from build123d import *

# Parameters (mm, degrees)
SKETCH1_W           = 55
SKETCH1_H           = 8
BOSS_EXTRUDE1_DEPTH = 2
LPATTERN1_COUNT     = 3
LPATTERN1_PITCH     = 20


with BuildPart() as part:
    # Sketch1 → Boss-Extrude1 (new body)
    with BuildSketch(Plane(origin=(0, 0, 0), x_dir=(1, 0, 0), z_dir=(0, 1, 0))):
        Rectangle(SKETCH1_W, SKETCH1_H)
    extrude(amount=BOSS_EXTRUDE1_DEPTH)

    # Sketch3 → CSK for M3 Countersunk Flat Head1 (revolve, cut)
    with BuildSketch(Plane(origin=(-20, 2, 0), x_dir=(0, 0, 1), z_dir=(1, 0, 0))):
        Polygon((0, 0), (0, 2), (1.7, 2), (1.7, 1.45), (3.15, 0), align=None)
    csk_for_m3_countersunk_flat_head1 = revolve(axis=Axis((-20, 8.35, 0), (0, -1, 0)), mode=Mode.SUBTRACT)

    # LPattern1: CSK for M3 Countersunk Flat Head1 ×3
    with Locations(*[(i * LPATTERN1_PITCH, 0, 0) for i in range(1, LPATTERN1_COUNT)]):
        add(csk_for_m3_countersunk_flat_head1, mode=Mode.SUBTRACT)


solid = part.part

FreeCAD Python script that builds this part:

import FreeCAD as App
import Part
import Sketcher
Q = App.Units.Quantity

doc = App.newDocument("Part")
body = doc.addObject("PartDesign::Body", "Body")

sketch1 = body.newObject("Sketcher::SketchObject", "Sketch")
sketch1.AttachmentSupport = (doc.getObject("XZ_Plane"), [""])
sketch1.MapMode = "FlatFace"
sketch1.addGeometry([
    Part.LineSegment(App.Vector(-28, -4, 0), App.Vector(-28, 4, 0)),
    Part.LineSegment(App.Vector(-28, 4, 0), App.Vector(28, 4, 0)),
    Part.LineSegment(App.Vector(28, 4, 0), App.Vector(28, -4, 0)),
    Part.LineSegment(App.Vector(28, -4, 0), App.Vector(-28, -4, 0)),
], False)
sketch1.addConstraint([
    Sketcher.Constraint("Coincident", 0, 2, 1, 1),
    Sketcher.Constraint("Coincident", 1, 2, 2, 1),
    Sketcher.Constraint("Coincident", 2, 2, 3, 1),
    Sketcher.Constraint("Coincident", 3, 2, 0, 1),
    Sketcher.Constraint("Vertical", 0),
    Sketcher.Constraint("Horizontal", 1),
    Sketcher.Constraint("Vertical", 2),
    Sketcher.Constraint("Horizontal", 3),
    Sketcher.Constraint("Symmetric", 0, 2, 2, 2, -1, 1),
    Sketcher.Constraint("DistanceX", 1, 1, 1, 2, 55.0),
    Sketcher.Constraint("DistanceY", 0, 1, 0, 2, 8.0),
])
pad1 = body.newObject("PartDesign::Pad", "Pad")
pad1.Profile = sketch1
pad1.Length = 2
pad1.Reversed = True

sketch2 = body.newObject("Sketcher::SketchObject", "Sketch001")
sketch2.AttachmentSupport = (doc.getObject("YZ_Plane"), [""])
sketch2.MapMode = "FlatFace"
sketch2.AttachmentOffset = App.Placement(App.Vector(0, 0, -20), App.Rotation())
sketch2.addGeometry([
    Part.LineSegment(App.Vector(0, 0, 0), App.Vector(2, 0, 0)),
    Part.LineSegment(App.Vector(2, 0, 0), App.Vector(2, 3.1, 0)),
    Part.LineSegment(App.Vector(2, 3.1, 0), App.Vector(0.6, 1.7, 0)),
    Part.LineSegment(App.Vector(0.6, 1.7, 0), App.Vector(0, 1.7, 0)),
    Part.LineSegment(App.Vector(0, 1.7, 0), App.Vector(0, 0, 0)),
], False)
sketch2.addConstraint([
    Sketcher.Constraint("Coincident", 0, 2, 1, 1),
    Sketcher.Constraint("Coincident", 1, 2, 2, 1),
    Sketcher.Constraint("Coincident", 2, 2, 3, 1),
    Sketcher.Constraint("Coincident", 3, 2, 4, 1),
    Sketcher.Constraint("Coincident", 4, 2, 0, 1),
    Sketcher.Constraint("Horizontal", 0),
    Sketcher.Constraint("Vertical", 1),
    Sketcher.Constraint("Horizontal", 3),
    Sketcher.Constraint("Vertical", 4),
    Sketcher.Constraint("Coincident", 4, 2, -1, 1),
    Sketcher.Constraint("DistanceX", 0, 1, 0, 2, 2.0),
    Sketcher.Constraint("Angle", 2, Q("-135 deg")),
    Sketcher.Constraint("DistanceY", 4, 2, 4, 1, 1.7),
    Sketcher.Constraint("DistanceX", 3, 2, 3, 1, 0.55),
])
groove = body.newObject("PartDesign::Groove", "Groove")
groove.Profile = sketch2
groove.ReferenceAxis = (sketch2, ["H_Axis"])
groove.Angle = 360
doc.recompute()

linearpattern = body.newObject("PartDesign::LinearPattern", "LinearPattern")
linearpattern.Originals = [groove]
linearpattern.Direction = (doc.getObject("X_Axis"), [""])
linearpattern.Mode = "offset"
linearpattern.Offset = 20
linearpattern.Occurrences = 3
body.Tip = linearpattern

doc.recompute()
